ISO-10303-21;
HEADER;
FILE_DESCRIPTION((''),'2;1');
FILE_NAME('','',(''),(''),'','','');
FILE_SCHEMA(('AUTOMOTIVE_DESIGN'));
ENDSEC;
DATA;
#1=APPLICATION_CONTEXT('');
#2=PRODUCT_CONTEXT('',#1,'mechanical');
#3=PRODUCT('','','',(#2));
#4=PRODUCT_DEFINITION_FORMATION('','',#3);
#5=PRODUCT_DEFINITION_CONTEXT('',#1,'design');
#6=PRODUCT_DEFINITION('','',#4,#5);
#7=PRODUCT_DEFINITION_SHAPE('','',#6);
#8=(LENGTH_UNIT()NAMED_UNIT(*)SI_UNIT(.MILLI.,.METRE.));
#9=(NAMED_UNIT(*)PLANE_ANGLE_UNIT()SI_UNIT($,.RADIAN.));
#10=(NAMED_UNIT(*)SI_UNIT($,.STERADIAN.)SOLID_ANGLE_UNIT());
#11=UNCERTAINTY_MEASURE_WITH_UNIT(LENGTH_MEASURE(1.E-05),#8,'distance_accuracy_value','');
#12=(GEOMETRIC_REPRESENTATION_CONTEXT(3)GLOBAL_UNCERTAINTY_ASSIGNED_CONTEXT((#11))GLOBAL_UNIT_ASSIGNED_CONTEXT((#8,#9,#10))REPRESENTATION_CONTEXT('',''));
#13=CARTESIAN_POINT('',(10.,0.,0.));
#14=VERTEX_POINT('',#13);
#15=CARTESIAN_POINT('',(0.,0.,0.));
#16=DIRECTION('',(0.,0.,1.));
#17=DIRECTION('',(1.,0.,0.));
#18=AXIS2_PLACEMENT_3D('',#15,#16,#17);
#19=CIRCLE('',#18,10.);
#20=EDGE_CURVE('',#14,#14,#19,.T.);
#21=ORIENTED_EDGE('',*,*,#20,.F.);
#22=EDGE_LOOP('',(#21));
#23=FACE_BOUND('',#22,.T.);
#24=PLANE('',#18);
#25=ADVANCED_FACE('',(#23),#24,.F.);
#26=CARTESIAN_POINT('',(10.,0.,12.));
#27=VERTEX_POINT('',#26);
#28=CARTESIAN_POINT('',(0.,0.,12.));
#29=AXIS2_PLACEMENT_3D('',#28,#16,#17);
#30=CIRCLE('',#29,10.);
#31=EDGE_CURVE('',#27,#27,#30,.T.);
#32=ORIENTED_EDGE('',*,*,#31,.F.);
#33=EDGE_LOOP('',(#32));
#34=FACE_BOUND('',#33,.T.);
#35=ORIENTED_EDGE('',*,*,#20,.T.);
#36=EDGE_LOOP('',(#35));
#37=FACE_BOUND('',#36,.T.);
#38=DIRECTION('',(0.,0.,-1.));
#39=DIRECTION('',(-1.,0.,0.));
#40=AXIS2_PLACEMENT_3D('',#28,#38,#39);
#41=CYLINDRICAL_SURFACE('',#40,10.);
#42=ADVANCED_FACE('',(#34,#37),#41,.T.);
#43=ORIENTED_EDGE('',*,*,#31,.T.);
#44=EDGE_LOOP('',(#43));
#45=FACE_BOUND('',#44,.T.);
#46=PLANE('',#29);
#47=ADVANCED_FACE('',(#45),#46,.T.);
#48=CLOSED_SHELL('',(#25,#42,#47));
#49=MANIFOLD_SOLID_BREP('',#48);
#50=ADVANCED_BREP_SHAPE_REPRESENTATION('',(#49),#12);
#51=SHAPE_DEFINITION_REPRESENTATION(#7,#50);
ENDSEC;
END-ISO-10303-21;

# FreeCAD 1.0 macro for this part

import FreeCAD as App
import Part
import Sketcher
Q = App.Units.Quantity

doc = App.newDocument("Part")
params = doc.addObject("Spreadsheet::Sheet", "Params")
for row, (alias, value) in enumerate([
    ("sketch1_diameter", "20 mm"),
    ("pad1_length", "12 mm"),
], start=1):
    params.set(f"A{row}", alias)
    params.set(f"B{row}", "=" + value)
    params.setAlias(f"B{row}", alias)

body = doc.addObject("PartDesign::Body", "Body")

sketch1 = body.newObject("Sketcher::SketchObject", "Sketch")
sketch1.AttachmentSupport = (doc.getObject("XY_Plane"), [""])
sketch1.MapMode = "FlatFace"
sketch1.addGeometry(Part.Circle(App.Vector(0, 0, 0), App.Vector(0, 0, 1), 10), False)
sketch1.addConstraint([
    Sketcher.Constraint("Coincident", 0, 3, -1, 1),
    Sketcher.Constraint("Diameter", 0, Q("20 mm")),
])
sketch1.setExpression("Constraints[1]", "Params.sketch1_diameter")
pad1 = body.newObject("PartDesign::Pad", "Pad")
pad1.Profile = sketch1
pad1.setExpression("Length", "Params.pad1_length")

doc.recompute()
